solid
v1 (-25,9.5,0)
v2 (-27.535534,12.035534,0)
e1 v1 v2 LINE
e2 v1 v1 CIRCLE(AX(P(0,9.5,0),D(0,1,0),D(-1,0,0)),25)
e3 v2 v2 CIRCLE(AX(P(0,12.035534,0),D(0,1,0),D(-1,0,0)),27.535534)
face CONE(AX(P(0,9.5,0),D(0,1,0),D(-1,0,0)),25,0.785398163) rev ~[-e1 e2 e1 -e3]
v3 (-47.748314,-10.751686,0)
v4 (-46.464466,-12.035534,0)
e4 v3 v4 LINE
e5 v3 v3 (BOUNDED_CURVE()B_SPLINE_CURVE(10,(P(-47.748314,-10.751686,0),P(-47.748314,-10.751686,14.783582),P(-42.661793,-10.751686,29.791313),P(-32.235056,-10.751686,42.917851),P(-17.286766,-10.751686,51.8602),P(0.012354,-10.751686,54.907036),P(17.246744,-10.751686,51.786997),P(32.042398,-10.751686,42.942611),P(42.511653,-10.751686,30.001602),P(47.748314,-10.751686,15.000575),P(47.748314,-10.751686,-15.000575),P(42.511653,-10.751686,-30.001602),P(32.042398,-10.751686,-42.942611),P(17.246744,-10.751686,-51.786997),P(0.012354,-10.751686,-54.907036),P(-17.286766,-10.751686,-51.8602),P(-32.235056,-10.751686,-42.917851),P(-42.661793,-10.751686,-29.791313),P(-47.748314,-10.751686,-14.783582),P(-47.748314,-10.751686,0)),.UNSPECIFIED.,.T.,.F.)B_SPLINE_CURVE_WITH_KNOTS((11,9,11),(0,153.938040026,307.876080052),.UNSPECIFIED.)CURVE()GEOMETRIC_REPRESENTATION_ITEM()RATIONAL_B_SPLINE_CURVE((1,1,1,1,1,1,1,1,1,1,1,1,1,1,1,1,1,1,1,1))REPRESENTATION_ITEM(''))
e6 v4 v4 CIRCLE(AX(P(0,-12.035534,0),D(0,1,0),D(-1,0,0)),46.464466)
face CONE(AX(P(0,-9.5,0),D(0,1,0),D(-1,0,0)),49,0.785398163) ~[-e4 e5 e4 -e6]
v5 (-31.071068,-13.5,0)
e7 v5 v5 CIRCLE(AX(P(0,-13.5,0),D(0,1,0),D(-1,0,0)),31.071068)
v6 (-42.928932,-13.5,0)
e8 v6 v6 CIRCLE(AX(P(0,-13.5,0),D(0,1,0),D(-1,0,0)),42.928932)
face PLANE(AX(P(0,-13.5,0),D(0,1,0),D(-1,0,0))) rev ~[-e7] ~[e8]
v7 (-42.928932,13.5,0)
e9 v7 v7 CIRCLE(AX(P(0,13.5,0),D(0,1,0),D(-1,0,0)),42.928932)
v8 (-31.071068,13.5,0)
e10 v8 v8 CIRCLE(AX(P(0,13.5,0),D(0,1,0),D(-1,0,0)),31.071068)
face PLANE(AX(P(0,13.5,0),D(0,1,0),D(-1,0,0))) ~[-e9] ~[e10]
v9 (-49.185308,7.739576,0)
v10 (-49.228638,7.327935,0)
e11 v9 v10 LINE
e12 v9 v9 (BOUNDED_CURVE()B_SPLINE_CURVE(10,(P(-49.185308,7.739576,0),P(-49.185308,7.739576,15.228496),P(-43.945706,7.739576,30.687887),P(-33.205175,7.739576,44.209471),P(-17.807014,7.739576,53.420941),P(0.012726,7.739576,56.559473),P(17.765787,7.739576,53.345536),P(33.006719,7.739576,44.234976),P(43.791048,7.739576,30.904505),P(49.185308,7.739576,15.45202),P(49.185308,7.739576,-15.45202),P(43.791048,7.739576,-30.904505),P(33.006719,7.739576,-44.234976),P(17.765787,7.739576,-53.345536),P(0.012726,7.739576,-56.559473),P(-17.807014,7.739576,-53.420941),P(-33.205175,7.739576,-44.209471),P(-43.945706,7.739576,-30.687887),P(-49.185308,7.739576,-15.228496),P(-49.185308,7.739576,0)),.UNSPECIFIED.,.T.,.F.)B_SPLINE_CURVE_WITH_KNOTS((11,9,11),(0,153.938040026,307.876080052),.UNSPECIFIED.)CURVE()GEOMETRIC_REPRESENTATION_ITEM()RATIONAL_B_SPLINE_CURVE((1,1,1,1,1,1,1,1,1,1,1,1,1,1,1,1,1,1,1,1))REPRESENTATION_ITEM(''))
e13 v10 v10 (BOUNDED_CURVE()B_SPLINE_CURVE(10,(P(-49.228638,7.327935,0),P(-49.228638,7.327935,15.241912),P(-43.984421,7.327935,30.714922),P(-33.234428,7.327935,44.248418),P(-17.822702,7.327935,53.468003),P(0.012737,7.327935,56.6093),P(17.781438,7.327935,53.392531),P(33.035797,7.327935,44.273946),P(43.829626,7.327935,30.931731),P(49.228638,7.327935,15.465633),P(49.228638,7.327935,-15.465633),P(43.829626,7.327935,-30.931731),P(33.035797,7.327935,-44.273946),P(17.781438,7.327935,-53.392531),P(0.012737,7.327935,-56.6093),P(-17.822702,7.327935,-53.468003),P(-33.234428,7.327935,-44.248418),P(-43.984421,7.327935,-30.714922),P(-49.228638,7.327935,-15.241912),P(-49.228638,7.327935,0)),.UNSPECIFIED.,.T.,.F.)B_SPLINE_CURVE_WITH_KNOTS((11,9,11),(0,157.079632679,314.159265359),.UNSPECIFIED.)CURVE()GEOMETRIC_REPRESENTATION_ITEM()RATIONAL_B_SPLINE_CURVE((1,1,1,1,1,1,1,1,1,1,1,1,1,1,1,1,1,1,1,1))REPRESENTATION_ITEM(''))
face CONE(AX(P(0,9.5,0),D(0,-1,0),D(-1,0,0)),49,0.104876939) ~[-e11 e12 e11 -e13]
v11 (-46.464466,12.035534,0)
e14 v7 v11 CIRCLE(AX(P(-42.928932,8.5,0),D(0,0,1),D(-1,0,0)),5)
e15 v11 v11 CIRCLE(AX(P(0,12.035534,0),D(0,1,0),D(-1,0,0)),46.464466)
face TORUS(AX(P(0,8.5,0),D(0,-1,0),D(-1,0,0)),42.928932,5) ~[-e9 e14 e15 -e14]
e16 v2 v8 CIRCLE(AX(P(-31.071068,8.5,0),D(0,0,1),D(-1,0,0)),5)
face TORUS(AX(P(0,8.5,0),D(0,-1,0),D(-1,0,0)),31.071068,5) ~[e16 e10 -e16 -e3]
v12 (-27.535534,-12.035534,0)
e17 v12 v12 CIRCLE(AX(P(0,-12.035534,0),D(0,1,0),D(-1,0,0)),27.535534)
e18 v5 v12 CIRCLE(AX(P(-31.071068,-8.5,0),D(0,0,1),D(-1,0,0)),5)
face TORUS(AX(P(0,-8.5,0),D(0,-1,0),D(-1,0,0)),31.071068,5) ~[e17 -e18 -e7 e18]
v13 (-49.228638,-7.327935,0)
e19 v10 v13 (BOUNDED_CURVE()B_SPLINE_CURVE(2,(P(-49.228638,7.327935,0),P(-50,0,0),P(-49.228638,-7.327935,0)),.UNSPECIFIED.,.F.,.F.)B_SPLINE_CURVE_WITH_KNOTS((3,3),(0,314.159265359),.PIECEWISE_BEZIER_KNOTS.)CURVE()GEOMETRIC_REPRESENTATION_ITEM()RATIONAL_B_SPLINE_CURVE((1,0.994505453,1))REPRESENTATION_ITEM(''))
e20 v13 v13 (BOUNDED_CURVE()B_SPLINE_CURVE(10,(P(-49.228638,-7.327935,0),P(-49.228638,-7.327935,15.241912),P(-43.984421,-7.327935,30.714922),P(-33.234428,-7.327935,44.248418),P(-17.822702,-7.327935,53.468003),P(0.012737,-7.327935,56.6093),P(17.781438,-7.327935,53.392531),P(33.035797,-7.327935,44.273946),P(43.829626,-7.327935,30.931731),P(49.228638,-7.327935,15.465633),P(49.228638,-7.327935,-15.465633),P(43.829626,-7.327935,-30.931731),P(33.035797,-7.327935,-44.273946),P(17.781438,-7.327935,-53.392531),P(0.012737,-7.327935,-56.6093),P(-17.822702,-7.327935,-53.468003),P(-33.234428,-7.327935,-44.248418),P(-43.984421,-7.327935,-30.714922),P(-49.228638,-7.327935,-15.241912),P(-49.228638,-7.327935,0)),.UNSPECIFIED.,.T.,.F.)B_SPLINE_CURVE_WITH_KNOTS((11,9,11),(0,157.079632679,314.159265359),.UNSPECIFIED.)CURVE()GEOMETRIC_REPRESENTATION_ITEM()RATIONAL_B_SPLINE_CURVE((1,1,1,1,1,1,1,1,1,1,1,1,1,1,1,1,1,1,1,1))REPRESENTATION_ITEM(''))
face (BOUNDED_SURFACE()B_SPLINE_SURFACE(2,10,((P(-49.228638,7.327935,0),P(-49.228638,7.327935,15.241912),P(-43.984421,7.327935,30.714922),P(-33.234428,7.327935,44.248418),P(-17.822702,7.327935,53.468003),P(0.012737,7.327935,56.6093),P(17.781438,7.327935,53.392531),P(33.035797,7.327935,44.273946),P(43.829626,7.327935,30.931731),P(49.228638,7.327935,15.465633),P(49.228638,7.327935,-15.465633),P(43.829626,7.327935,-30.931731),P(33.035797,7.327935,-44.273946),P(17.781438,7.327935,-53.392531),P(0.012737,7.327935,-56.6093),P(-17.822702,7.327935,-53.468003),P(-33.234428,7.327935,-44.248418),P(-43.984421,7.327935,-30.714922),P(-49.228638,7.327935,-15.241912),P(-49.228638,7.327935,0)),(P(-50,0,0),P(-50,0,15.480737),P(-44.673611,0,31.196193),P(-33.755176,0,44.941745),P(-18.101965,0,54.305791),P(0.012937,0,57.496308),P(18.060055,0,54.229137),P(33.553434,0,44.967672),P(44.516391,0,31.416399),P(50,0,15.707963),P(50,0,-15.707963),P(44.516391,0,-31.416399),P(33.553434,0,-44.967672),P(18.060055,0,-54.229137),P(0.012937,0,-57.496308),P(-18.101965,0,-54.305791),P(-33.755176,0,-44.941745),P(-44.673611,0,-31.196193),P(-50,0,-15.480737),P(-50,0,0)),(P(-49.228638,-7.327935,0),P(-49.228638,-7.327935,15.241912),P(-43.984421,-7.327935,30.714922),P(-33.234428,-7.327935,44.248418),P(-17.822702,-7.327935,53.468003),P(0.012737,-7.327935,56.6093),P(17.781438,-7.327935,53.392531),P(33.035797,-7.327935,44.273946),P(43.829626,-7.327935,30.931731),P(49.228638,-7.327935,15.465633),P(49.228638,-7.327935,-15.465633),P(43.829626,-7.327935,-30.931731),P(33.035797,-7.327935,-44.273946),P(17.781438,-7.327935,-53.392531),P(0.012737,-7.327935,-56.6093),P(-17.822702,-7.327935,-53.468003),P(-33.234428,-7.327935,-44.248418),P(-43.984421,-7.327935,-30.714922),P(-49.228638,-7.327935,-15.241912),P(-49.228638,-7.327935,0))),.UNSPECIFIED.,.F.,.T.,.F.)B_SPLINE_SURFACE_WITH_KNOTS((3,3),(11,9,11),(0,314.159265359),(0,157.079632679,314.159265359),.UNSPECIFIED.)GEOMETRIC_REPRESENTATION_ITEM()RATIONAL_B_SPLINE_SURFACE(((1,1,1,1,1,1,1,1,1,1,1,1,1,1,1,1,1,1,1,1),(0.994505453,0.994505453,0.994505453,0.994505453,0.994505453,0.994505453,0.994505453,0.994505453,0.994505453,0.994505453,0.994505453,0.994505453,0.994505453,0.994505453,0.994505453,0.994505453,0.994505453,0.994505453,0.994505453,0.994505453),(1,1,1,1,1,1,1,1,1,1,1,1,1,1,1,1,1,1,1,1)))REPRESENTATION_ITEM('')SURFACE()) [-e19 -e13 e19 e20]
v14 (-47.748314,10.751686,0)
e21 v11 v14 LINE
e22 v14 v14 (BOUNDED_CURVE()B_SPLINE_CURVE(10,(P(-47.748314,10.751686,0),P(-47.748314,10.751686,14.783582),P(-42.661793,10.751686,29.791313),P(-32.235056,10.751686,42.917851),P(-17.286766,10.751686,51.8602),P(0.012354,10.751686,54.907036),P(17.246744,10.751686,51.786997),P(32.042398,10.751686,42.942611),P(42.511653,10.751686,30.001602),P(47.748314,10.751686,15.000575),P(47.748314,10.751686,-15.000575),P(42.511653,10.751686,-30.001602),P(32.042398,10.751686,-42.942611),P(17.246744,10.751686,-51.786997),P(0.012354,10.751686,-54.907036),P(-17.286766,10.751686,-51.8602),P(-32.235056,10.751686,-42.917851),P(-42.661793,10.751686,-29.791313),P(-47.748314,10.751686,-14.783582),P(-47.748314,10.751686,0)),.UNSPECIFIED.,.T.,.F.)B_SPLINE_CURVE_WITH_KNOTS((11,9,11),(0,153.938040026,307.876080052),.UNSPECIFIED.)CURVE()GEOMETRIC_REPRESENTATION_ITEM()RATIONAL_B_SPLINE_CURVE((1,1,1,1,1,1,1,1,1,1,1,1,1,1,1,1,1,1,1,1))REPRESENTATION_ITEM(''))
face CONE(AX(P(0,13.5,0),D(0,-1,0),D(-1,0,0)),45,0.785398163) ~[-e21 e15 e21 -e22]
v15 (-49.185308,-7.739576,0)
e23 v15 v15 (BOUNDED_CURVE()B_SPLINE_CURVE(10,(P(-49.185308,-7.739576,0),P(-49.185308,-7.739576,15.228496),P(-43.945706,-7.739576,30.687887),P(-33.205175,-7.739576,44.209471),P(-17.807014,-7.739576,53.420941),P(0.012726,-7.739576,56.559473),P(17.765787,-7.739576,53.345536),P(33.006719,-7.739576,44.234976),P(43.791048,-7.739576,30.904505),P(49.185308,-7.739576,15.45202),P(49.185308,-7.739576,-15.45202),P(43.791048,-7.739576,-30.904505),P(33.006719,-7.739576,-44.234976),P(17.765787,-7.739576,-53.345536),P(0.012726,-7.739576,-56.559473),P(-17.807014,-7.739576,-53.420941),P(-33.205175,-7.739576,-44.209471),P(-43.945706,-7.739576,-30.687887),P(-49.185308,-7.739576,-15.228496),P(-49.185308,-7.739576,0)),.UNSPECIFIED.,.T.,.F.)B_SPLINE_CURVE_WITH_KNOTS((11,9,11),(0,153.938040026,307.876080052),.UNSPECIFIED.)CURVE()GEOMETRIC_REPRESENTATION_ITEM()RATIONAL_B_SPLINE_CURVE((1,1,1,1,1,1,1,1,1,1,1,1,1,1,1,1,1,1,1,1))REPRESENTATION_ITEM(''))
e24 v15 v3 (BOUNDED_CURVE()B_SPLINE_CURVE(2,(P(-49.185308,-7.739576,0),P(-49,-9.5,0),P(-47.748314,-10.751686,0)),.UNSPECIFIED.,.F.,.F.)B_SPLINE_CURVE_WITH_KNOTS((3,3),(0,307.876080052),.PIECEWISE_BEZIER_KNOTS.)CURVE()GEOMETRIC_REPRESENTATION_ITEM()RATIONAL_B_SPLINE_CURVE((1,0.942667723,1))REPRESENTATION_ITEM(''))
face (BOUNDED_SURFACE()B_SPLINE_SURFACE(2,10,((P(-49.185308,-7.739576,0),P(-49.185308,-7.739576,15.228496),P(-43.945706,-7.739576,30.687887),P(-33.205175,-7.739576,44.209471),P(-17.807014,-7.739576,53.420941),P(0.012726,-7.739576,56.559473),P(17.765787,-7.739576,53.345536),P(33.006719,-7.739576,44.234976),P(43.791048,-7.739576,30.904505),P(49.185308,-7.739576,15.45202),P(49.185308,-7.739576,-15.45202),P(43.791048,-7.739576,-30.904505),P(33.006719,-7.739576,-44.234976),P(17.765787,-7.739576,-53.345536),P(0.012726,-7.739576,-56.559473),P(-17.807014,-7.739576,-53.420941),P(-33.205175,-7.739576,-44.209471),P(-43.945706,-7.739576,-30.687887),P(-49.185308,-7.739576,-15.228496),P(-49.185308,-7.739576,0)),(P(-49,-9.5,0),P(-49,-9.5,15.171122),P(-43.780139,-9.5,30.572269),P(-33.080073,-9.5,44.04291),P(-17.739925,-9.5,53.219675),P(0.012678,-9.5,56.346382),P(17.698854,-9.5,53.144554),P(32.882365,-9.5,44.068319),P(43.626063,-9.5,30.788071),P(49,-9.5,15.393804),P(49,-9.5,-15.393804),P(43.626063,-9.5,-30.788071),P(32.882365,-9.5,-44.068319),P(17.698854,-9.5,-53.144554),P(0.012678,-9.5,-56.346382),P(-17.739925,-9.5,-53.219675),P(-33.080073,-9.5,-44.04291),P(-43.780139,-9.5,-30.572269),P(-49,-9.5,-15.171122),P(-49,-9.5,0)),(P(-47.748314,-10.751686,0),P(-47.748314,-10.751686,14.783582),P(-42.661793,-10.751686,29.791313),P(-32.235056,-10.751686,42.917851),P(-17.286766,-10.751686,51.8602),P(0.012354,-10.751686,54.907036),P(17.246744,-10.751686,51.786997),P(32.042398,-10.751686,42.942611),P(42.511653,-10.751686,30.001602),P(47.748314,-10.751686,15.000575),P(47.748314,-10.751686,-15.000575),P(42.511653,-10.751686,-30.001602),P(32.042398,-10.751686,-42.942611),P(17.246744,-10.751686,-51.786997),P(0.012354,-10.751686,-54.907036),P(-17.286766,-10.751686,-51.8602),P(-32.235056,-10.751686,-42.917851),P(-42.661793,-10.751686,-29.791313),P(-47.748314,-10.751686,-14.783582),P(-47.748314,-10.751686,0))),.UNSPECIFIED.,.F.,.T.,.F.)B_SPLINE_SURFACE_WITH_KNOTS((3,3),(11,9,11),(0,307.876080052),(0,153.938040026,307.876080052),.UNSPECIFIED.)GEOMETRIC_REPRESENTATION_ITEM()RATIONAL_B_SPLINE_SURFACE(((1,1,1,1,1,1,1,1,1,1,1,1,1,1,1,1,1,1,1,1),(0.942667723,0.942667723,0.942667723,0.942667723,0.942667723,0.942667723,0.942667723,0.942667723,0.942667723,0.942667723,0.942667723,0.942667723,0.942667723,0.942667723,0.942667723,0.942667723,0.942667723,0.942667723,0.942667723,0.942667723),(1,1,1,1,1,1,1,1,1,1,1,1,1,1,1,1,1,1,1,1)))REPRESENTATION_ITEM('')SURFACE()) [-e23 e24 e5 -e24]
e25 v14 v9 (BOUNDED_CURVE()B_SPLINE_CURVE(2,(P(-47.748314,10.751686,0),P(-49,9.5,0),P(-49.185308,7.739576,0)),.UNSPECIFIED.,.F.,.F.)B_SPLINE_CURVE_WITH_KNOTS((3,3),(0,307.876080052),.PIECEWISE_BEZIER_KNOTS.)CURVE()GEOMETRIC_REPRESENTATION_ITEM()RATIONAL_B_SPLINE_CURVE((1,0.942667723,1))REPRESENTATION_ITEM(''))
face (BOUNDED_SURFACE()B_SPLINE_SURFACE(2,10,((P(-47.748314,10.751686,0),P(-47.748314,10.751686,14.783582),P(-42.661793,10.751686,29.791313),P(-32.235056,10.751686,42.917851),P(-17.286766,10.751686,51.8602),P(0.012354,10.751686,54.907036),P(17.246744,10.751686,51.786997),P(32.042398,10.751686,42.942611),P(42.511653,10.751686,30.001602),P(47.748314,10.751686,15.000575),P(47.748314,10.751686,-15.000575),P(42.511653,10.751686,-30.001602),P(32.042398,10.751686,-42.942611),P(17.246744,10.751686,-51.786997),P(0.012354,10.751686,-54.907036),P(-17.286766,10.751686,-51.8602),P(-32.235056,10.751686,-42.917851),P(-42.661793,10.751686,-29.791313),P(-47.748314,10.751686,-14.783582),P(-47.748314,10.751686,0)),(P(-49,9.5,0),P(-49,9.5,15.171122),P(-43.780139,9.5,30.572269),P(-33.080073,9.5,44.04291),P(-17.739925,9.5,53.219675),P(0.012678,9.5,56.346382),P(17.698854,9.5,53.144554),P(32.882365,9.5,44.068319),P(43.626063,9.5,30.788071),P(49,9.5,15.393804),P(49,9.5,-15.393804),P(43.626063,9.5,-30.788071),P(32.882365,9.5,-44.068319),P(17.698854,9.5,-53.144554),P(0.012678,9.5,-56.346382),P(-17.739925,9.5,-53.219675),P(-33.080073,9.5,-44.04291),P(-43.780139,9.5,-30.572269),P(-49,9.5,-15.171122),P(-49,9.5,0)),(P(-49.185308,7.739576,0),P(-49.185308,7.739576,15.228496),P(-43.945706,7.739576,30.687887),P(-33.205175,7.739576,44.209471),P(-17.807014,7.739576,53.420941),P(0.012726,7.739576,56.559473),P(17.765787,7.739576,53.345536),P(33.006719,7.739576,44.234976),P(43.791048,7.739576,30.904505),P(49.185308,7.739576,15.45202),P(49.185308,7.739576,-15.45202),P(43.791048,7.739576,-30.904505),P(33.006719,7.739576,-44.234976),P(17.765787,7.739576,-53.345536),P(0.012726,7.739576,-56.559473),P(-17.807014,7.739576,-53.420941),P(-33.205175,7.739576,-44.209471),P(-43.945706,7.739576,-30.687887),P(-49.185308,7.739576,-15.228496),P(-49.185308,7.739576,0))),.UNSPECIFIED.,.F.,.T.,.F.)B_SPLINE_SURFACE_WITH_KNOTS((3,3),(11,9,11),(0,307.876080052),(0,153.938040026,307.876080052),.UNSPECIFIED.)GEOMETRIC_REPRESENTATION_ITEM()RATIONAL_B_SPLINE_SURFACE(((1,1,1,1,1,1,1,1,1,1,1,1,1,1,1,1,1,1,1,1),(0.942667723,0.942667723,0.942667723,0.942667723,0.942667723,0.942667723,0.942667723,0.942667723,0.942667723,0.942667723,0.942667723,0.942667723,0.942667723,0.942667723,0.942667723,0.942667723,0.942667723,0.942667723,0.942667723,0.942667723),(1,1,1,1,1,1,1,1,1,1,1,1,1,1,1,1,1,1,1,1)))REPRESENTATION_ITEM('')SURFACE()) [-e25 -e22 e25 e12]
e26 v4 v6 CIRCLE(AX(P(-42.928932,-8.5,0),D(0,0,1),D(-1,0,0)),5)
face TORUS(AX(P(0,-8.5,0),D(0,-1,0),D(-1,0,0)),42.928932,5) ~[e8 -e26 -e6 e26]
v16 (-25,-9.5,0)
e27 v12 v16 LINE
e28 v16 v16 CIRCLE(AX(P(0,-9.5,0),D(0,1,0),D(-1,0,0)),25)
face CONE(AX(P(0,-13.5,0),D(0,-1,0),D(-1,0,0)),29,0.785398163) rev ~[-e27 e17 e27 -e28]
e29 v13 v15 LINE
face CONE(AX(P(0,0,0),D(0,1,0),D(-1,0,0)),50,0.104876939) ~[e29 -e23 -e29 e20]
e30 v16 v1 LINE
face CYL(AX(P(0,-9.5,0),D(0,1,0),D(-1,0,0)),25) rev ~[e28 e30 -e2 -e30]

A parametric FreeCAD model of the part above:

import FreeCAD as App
import Part
import Sketcher
Q = App.Units.Quantity


def edges_at(feature, points):
    """Names of the edges that pass closest to the given points."""
    edges = feature.Shape.Edges
    near = lambda p: min(range(len(edges)), key=lambda i: edges[i].distToShape(Part.Vertex(*p))[0])
    return sorted({f"Edge{near(p) + 1}" for p in points})


def add_polygon(sketch, points):
    """Adds a closed chain of lines whose ends are joined by coincident constraints."""
    first, n = sketch.GeometryCount, len(points)
    for a, b in zip(points, points[1:] + points[:1]):
        sketch.addGeometry(Part.LineSegment(App.Vector(*a, 0), App.Vector(*b, 0)), False)
    for i in range(n):
        sketch.addConstraint(Sketcher.Constraint("Coincident", first + i, 2, first + (i + 1) % n, 1))

doc = App.newDocument("Part")
body = doc.addObject("PartDesign::Body", "Body")

sketch1 = body.newObject("Sketcher::SketchObject", "Sketch")
sketch1.AttachmentSupport = (doc.getObject("XY_Plane"), [""])
sketch1.MapMode = "FlatFace"
add_polygon(sketch1, [(-25, 10), (-29, 14), (-45, 14), (-49, 10), (-50, 0), (-49, -10), (-45, -14), (-29, -14), (-25, -10)])
sketch1.addConstraint(Sketcher.Constraint("Horizontal", 1))
sketch1.addConstraint(Sketcher.Constraint("Horizontal", 6))
sketch1.addConstraint(Sketcher.Constraint("Vertical", 8))
sketch1.addConstraint(Sketcher.Constraint("Symmetric", 2, 2, 4, 2, -1))
sketch1.addConstraint(Sketcher.Constraint("Symmetric", 1, 2, 5, 2, -1))
sketch1.addConstraint(Sketcher.Constraint("PointOnObject", 3, 2, -1))
sketch1.addConstraint(Sketcher.Constraint("Perpendicular", 0, 2))
sketch1.addConstraint(Sketcher.Constraint("Perpendicular", 2, 5))
sketch1.addConstraint(Sketcher.Constraint("Perpendicular", 5, 7))
sketch1.addConstraint(Sketcher.Constraint("Horizontal", 4, 2, 7, 2))
sketch1.addConstraint(Sketcher.Constraint("Horizontal", 2, 2, 8, 2))
sketch1.addConstraint(Sketcher.Constraint("DistanceX", 1, 2, 1, 1, Q("16 mm")))
sketch1.addConstraint(Sketcher.Constraint("DistanceY", 8, 1, 8, 2, Q("19 mm")))
sketch1.addConstraint(Sketcher.Constraint("DistanceX", 0, 2, -1, 1, Q("29 mm")))
sketch1.addConstraint(Sketcher.Constraint("DistanceX", 2, 2, -1, 1, Q("49 mm")))
sketch1.addConstraint(Sketcher.Constraint("DistanceX", 3, 2, -1, 1, Q("50 mm")))
revolution = body.newObject("PartDesign::Revolution", "Revolution")
revolution.Profile = sketch1
revolution.ReferenceAxis = (sketch1, ["V_Axis"])
revolution.Angle = 360
doc.recompute()

fillet = body.newObject("PartDesign::Fillet", "Fillet")
fillet.Base = (revolution, edges_at(revolution, [
    (29, -13.5, 0),
    (45, -13.5, 0),
    (49, -9.5, 0),
    (45, 13.5, 0),
    (29, 13.5, 0),
    (49, 9.5, 0),
]))
fillet.Radius = 5
doc.recompute()

fillet2 = body.newObject("PartDesign::Fillet", "Fillet001")
fillet2.Base = (fillet, edges_at(fillet, [(50, 0, 0)]))
fillet2.Radius = 70

doc.recompute()
